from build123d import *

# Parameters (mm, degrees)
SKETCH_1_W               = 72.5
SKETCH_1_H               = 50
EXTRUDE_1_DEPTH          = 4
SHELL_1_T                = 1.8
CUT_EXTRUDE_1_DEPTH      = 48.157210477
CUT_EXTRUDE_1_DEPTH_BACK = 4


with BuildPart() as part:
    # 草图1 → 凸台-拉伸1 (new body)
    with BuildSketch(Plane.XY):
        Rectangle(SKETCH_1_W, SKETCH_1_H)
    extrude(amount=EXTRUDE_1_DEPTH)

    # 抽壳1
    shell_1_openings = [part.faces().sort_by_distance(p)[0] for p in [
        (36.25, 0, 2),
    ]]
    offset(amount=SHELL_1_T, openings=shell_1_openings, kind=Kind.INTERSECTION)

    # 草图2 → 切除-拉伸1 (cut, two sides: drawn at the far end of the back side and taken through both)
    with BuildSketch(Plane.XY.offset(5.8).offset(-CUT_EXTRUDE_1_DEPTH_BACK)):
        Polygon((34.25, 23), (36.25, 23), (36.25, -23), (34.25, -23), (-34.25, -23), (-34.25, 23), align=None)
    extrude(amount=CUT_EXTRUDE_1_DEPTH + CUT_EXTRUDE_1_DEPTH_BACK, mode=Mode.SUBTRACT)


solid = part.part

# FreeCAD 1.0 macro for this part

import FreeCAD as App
import Part
import Sketcher
from FreeCAD import Vector


def faces_at(feature, points):
    """Names of the faces that lie closest to the given points."""
    faces = feature.Shape.Faces
    near = lambda p: min(range(len(faces)), key=lambda i: faces[i].distToShape(Part.Vertex(*p))[0])
    return sorted({f"Face{near(p) + 1}" for p in points})

doc = App.newDocument("Part")
body = doc.addObject("PartDesign::Body", "Body")

# Sketch on XY plane
sketch1 = body.newObject("Sketcher::SketchObject", "Sketch")
sketch1.AttachmentSupport = (doc.getObject("XY_Plane"), [""])
sketch1.MapMode = "FlatFace"
sketch1.addGeometry(Part.LineSegment(Vector(-36, 25, 0), Vector(-36, -25, 0)), False)
sketch1.addGeometry(Part.LineSegment(Vector(-36, -25, 0), Vector(36, -25, 0)), False)
sketch1.addGeometry(Part.LineSegment(Vector(36, -25, 0), Vector(36, 25, 0)), False)
sketch1.addGeometry(Part.LineSegment(Vector(36, 25, 0), Vector(-36, 25, 0)), False)
sketch1.addConstraint(Sketcher.Constraint("Coincident", 0, 2, 1, 1))
sketch1.addConstraint(Sketcher.Constraint("Coincident", 1, 2, 2, 1))
sketch1.addConstraint(Sketcher.Constraint("Coincident", 2, 2, 3, 1))
sketch1.addConstraint(Sketcher.Constraint("Coincident", 3, 2, 0, 1))
sketch1.addConstraint(Sketcher.Constraint("Vertical", 0))
sketch1.addConstraint(Sketcher.Constraint("Horizontal", 1))
sketch1.addConstraint(Sketcher.Constraint("Vertical", 2))
sketch1.addConstraint(Sketcher.Constraint("Horizontal", 3))
sketch1.addConstraint(Sketcher.Constraint("Symmetric", 0, 2, 2, 2, -1, 1))
sketch1.addConstraint(Sketcher.Constraint("DistanceY", 0, 2, 0, 1, 50.0))
sketch1.addConstraint(Sketcher.Constraint("DistanceX", 1, 1, 1, 2, 72.5))
pad1 = body.newObject("PartDesign::Pad", "Pad")
pad1.Profile = sketch1
pad1.Length = 4
doc.recompute()

thickness = body.newObject("PartDesign::Thickness", "Thickness")
thickness.Base = (pad1, faces_at(pad1, [(36.25, 0, 2)]))
thickness.Value = 1.8
thickness.Reversed = False
thickness.Join = "Intersection"

# Sketch on XY plane
sketch2 = body.newObject("Sketcher::SketchObject", "Sketch001")
sketch2.AttachmentSupport = (doc.getObject("XY_Plane"), [""])
sketch2.MapMode = "FlatFace"
sketch2.AttachmentOffset = App.Placement(Vector(0, 0, 5.8), App.Rotation())
sketch2.addGeometry(Part.LineSegment(Vector(36, 23, 0), Vector(-34, 23, 0)), False)
sketch2.addGeometry(Part.LineSegment(Vector(-34, 23, 0), Vector(-34, -23, 0)), False)
sketch2.addGeometry(Part.LineSegment(Vector(-34, -23, 0), Vector(36, -23, 0)), False)
sketch2.addGeometry(Part.LineSegment(Vector(36, -23, 0), Vector(36, 23, 0)), False)
sketch2.addConstraint(Sketcher.Constraint("Coincident", 0, 2, 1, 1))
sketch2.addConstraint(Sketcher.Constraint("Coincident", 1, 2, 2, 1))
sketch2.addConstraint(Sketcher.Constraint("Coincident", 2, 2, 3, 1))
sketch2.addConstraint(Sketcher.Constraint("Coincident", 3, 2, 0, 1))
sketch2.addConstraint(Sketcher.Constraint("Horizontal", 0))
sketch2.addConstraint(Sketcher.Constraint("Vertical", 1))
sketch2.addConstraint(Sketcher.Constraint("Horizontal", 2))
sketch2.addConstraint(Sketcher.Constraint("Vertical", 3))
sketch2.addConstraint(Sketcher.Constraint("DistanceY", 1, 2, 1, 1, 46.0))
sketch2.addConstraint(Sketcher.Constraint("DistanceX", 0, 2, 0, 1, 70.5))
sketch2.addConstraint(Sketcher.Constraint("DistanceY", -1, 1, 0, 2, 23.0))
sketch2.addConstraint(Sketcher.Constraint("DistanceX", 0, 2, -1, 1, 34.25))
pocket1 = body.newObject("PartDesign::Pocket", "Pocket")
pocket1.Profile = sketch2
pocket1.Type = "TwoLengths"
pocket1.Length = 48.15721
pocket1.Length2 = 4
pocket1.Reversed = True

doc.recompute()
